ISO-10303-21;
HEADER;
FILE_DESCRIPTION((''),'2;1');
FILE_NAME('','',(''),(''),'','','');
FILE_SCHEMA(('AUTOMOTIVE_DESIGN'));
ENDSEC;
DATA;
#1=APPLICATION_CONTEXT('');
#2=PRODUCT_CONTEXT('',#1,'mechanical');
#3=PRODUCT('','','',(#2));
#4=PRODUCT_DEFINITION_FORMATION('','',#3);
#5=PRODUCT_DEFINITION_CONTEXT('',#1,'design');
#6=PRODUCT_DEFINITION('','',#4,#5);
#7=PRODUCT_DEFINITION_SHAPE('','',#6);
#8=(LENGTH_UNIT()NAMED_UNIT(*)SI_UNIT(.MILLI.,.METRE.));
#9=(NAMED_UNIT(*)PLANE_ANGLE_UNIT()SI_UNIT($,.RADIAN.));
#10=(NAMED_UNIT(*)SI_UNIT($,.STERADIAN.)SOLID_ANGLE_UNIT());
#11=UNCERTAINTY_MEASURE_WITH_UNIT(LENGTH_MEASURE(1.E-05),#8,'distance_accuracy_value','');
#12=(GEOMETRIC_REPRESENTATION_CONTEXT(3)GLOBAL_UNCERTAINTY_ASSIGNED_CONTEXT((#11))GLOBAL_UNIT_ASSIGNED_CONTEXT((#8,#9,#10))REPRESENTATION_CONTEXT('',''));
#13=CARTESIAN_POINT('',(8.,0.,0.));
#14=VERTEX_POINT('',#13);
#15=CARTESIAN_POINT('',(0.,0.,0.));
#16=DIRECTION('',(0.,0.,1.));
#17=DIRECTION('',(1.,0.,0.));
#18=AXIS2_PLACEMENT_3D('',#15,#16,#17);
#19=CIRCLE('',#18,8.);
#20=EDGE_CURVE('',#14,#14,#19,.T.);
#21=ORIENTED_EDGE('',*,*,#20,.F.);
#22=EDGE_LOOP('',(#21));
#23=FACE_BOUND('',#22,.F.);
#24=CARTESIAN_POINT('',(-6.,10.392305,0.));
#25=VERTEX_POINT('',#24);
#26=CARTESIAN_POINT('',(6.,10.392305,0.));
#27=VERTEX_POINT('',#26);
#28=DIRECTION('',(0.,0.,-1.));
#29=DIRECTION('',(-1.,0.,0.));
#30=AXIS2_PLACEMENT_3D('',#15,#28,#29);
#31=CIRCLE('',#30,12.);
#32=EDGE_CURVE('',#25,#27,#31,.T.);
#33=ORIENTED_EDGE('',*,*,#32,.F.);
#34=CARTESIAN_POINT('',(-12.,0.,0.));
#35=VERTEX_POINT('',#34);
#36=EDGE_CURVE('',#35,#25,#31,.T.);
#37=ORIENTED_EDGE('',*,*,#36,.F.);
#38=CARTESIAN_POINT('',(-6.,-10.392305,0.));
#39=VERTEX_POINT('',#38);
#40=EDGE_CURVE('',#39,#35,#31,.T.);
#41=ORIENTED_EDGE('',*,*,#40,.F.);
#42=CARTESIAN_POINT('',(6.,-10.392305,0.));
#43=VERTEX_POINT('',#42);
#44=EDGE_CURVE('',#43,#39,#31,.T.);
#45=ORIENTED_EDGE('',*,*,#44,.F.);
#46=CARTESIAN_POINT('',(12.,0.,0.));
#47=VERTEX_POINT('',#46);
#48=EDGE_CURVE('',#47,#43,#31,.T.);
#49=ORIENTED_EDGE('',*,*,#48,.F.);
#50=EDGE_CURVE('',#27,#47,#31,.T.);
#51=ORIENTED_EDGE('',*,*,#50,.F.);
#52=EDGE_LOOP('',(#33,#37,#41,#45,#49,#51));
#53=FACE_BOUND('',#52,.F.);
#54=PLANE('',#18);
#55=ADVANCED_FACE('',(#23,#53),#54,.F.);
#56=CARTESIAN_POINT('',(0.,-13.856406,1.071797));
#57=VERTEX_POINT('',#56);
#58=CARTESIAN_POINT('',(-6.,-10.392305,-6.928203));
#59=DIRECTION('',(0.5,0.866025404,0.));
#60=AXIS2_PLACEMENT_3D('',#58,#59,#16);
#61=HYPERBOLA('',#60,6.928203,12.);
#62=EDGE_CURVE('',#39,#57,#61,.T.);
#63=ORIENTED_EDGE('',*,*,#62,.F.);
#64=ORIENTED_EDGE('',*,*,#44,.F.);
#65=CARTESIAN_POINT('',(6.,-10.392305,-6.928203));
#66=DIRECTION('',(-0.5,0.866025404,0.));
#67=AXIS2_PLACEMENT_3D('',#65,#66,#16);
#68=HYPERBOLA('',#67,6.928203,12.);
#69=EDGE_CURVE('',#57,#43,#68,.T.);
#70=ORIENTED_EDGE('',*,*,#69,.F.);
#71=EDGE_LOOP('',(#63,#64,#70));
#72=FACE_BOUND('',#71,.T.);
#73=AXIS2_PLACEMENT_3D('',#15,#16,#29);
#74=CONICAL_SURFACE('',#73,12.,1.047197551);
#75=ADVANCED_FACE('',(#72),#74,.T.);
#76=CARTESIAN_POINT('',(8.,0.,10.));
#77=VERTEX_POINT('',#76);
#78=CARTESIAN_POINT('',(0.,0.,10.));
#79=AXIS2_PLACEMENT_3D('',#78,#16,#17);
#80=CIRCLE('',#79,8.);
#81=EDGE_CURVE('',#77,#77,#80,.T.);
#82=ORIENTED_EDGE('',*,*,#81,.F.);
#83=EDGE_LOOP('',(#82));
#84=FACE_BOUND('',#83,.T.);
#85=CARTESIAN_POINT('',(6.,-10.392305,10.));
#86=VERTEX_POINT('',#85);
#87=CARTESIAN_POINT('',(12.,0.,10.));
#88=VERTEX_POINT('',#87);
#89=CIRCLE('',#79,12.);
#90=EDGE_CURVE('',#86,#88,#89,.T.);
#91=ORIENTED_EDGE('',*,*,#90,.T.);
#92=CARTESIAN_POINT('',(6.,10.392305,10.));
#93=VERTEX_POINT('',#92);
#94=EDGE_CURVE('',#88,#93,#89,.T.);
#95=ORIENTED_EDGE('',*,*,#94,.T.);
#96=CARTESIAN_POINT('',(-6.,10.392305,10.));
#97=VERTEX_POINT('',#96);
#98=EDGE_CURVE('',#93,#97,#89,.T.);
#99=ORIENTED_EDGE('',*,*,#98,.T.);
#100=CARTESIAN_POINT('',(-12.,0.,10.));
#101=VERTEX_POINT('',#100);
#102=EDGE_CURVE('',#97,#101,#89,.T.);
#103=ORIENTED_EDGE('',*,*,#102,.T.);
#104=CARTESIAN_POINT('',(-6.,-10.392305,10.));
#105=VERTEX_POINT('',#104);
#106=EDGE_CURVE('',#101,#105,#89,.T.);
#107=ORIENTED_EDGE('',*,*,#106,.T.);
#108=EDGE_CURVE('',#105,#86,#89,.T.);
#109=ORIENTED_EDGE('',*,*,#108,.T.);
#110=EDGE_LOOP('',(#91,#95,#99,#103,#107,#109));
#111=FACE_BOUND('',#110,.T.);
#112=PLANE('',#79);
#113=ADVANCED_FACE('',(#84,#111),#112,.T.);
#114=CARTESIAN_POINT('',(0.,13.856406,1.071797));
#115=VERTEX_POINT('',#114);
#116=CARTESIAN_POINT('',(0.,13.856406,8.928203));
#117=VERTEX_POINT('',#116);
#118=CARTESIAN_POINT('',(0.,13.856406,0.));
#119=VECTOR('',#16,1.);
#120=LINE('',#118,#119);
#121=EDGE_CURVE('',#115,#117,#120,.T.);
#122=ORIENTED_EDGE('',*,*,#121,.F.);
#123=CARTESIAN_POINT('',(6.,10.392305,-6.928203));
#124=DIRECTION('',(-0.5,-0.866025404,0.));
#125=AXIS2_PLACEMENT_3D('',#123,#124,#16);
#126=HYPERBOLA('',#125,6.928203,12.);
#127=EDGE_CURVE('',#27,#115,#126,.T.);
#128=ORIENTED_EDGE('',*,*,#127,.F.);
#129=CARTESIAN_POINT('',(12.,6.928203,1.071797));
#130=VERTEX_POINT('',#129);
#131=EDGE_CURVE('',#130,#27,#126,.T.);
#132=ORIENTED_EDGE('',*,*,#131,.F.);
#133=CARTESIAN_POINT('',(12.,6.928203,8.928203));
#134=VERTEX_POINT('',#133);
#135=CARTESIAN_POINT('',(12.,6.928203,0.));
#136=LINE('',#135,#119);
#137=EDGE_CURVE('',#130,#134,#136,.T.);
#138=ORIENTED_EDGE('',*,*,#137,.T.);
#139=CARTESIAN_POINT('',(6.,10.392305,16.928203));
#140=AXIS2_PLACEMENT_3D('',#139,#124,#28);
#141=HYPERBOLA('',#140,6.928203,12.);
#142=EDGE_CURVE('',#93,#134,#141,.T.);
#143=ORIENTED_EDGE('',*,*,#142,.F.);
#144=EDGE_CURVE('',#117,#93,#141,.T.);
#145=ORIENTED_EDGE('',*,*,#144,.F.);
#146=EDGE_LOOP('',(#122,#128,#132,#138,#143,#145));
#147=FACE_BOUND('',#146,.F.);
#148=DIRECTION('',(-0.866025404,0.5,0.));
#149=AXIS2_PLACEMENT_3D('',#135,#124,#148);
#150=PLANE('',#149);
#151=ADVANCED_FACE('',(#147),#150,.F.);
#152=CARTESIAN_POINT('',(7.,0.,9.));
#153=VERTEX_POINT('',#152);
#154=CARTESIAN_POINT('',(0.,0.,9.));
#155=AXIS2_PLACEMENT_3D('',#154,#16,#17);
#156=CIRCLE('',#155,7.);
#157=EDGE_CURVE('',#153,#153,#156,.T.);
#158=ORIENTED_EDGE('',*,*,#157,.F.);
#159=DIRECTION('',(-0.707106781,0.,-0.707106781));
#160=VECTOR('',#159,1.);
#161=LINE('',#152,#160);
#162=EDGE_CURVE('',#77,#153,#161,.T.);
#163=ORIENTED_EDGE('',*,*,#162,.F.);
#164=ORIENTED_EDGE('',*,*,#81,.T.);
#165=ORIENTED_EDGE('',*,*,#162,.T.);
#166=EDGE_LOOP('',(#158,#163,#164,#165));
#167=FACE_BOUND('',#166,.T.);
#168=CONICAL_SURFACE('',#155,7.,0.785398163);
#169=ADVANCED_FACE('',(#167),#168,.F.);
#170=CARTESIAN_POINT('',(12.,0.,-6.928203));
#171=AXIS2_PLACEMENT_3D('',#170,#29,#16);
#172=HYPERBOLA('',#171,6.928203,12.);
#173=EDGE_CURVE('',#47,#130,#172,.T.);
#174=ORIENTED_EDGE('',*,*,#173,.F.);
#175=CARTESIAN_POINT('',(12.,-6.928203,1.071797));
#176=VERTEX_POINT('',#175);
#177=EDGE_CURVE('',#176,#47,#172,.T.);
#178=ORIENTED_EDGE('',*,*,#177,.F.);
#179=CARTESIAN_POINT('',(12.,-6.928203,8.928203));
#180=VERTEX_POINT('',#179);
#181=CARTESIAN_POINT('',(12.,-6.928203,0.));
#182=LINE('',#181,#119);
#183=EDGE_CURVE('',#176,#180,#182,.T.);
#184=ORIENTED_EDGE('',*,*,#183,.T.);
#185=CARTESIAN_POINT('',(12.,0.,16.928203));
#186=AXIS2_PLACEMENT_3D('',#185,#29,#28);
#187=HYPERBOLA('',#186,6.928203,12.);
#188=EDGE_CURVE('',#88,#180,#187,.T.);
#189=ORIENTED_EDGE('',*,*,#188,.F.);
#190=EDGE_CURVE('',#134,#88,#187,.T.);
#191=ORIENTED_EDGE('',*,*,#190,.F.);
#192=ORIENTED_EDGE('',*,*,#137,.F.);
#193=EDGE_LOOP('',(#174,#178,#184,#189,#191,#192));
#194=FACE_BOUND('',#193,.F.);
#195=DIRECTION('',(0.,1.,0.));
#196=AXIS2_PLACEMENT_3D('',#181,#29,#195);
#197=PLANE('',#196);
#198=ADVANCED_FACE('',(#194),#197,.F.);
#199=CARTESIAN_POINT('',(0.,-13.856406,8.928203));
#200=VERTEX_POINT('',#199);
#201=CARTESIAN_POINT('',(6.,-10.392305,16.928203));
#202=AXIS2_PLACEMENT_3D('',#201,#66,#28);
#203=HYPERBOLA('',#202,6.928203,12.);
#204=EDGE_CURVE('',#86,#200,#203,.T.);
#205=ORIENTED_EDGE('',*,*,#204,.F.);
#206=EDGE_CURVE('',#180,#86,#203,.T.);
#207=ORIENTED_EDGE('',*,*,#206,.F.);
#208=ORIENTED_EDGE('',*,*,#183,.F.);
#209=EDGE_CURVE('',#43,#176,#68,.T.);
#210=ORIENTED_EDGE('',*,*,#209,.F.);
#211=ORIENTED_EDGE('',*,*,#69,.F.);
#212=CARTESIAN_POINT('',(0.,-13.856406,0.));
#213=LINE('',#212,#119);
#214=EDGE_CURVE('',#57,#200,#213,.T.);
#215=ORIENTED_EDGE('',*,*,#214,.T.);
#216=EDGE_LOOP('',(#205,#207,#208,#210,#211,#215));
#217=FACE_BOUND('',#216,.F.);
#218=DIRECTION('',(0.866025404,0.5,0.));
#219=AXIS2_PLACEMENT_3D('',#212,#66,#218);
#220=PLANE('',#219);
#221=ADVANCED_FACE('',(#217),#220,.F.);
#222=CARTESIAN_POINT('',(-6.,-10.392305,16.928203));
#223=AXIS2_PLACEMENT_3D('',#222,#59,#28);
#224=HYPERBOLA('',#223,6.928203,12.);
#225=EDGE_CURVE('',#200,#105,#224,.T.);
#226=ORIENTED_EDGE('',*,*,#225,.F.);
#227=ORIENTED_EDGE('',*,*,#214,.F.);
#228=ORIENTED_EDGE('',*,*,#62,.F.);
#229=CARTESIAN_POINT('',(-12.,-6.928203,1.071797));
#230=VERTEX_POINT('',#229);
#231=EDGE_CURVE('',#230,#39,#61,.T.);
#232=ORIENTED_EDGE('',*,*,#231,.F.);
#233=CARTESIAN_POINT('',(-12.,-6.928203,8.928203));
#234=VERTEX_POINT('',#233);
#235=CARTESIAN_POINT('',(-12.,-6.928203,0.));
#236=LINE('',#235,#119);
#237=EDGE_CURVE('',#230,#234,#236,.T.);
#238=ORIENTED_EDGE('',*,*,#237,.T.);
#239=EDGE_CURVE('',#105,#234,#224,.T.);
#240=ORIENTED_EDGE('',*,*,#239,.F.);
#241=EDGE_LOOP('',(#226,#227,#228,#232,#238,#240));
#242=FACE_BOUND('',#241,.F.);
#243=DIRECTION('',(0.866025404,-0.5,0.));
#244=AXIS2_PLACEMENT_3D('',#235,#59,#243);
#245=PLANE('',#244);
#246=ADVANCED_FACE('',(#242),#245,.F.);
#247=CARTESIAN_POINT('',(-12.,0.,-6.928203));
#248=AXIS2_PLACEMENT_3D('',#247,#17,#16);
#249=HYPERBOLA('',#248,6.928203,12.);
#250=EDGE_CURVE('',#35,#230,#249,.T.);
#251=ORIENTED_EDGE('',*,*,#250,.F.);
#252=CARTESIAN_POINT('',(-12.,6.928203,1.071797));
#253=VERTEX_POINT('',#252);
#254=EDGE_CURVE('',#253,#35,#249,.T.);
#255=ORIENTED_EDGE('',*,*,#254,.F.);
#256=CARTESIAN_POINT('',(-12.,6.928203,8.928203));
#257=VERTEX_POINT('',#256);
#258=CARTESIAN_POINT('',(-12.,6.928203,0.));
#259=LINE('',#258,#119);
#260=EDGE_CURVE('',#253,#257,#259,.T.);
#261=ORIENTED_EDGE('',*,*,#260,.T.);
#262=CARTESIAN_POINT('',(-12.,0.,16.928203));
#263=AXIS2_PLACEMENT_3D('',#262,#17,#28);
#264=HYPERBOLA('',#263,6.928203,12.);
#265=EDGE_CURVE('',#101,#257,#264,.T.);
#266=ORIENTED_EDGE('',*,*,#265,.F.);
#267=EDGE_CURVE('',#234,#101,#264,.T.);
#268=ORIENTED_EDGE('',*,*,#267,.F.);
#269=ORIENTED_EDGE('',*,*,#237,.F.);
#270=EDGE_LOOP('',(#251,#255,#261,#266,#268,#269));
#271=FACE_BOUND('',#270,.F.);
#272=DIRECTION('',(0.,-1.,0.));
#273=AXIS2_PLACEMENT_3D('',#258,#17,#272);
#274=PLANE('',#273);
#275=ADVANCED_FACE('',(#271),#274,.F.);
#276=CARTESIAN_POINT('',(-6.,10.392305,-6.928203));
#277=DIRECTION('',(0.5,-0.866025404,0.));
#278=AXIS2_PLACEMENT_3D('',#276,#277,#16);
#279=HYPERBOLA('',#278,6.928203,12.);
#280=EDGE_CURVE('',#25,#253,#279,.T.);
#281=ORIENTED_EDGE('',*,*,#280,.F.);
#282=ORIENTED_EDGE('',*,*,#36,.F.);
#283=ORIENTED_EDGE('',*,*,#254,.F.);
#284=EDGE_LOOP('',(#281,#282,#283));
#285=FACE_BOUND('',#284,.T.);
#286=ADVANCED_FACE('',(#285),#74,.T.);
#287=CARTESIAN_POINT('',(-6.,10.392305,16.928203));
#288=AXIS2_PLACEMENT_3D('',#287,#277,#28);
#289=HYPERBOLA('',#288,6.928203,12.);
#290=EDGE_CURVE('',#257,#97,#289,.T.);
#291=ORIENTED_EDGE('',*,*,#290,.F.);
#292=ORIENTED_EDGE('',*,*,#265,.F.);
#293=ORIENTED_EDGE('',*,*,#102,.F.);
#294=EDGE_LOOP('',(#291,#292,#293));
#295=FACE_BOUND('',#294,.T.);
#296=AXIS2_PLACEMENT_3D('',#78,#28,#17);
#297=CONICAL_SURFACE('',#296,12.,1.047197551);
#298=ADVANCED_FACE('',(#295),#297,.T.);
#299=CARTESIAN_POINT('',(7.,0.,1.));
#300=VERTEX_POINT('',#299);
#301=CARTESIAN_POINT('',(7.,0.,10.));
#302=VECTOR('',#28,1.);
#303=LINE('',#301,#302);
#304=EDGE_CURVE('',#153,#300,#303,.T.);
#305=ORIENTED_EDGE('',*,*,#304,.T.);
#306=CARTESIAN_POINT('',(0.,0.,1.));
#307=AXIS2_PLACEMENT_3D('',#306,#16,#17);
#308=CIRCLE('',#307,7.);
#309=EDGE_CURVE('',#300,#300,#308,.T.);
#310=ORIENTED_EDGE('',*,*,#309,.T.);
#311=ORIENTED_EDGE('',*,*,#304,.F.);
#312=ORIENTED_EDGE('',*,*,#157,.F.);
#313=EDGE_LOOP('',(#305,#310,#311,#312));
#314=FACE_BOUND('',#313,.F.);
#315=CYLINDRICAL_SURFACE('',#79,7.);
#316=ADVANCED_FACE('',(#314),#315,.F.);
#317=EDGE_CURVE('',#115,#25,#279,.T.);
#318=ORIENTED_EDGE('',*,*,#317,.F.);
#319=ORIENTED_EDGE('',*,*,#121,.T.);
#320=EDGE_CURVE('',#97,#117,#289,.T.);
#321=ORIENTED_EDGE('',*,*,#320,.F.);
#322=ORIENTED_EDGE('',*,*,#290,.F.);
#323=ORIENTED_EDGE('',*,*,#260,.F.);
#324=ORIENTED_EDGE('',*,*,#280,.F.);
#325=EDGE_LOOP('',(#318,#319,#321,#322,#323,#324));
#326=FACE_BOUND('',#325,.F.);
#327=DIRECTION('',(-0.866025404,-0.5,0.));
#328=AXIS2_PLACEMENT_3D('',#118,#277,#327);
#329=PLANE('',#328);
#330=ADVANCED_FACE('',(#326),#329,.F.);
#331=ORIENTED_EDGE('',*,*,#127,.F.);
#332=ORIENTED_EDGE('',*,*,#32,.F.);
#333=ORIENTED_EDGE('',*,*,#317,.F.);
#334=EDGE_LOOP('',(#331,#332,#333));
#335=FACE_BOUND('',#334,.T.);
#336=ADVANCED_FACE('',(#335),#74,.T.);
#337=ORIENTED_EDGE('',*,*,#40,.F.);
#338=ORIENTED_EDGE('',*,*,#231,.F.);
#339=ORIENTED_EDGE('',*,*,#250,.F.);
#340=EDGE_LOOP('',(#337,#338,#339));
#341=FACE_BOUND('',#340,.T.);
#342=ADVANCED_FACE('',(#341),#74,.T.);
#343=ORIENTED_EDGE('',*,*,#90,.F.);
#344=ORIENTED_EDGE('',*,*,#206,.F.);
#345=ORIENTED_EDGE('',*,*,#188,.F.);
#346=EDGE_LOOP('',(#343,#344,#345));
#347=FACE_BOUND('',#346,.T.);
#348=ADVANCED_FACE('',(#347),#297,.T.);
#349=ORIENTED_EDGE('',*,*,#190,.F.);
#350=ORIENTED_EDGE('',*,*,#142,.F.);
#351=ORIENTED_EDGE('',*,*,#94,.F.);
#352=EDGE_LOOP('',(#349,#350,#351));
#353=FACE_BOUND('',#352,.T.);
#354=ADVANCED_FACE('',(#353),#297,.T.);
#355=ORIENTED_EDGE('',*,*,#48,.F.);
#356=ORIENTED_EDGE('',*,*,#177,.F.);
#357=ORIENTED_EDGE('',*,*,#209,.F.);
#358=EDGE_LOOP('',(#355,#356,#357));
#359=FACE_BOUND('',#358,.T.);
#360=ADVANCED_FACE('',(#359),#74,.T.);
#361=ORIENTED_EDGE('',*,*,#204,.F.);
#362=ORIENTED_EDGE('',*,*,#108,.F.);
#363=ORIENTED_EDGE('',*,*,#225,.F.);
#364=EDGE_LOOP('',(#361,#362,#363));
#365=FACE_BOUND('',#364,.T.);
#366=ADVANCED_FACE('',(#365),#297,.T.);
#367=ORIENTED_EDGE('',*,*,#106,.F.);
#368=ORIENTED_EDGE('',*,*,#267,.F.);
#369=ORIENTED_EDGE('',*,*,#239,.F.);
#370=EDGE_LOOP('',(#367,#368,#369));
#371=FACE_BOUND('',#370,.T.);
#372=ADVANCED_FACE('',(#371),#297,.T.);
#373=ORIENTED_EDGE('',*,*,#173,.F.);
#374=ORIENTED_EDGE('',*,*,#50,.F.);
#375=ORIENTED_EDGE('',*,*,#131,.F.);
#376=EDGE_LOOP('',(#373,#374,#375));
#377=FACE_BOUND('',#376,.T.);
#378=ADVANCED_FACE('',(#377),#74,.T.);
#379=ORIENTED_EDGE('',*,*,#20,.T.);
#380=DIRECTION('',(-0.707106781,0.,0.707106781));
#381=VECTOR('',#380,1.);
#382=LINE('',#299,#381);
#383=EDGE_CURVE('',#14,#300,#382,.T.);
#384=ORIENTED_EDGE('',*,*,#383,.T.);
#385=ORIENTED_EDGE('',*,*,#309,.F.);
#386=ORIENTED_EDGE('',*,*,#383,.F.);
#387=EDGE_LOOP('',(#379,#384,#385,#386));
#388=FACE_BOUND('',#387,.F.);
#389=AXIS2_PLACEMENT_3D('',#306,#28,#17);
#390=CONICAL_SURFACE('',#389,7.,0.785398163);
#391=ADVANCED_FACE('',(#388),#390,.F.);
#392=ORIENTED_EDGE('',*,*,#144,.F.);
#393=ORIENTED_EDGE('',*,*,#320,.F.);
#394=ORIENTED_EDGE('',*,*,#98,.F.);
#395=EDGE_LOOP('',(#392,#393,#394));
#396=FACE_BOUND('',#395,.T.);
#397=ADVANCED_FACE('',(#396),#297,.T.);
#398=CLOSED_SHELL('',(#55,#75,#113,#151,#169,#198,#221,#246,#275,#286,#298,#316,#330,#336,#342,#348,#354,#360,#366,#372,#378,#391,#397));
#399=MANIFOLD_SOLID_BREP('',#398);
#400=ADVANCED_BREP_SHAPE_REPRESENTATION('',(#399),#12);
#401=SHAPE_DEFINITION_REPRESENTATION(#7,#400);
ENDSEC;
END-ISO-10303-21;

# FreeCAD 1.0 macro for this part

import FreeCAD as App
import Part
import Sketcher
from FreeCAD import Vector
Q = App.Units.Quantity


def edges_at(feature, points):
    """Names of the edges that pass closest to the given points."""
    edges = feature.Shape.Edges
    near = lambda p: min(range(len(edges)), key=lambda i: edges[i].distToShape(Part.Vertex(*p))[0])
    return sorted({f"Edge{near(p) + 1}" for p in points})


def faces_at(feature, points):
    """Names of the faces that lie closest to the given points."""
    faces = feature.Shape.Faces
    near = lambda p: min(range(len(faces)), key=lambda i: faces[i].distToShape(Part.Vertex(*p))[0])
    return sorted({f"Face{near(p) + 1}" for p in points})


def add_polygon(sketch, points):
    """Adds a closed chain of lines whose ends are joined by coincident constraints."""
    first, n = sketch.GeometryCount, len(points)
    for a, b in zip(points, points[1:] + points[:1]):
        sketch.addGeometry(Part.LineSegment(App.Vector(*a, 0), App.Vector(*b, 0)), False)
    for i in range(n):
        sketch.addConstraint(Sketcher.Constraint("Coincident", first + i, 2, first + (i + 1) % n, 1))

doc = App.newDocument("Part")
body = doc.addObject("PartDesign::Body", "Body")

# Sketch on XY plane
sketch1 = body.newObject("Sketcher::SketchObject", "Sketch")
sketch1.AttachmentSupport = (doc.getObject("XY_Plane"), [""])
sketch1.MapMode = "FlatFace"
add_polygon(sketch1, [(12, -7), (12, 7), (0, 14), (-12, 7), (-12, -7), (0, -14)])  # lines 0-5
sketch1.addConstraint([
    Sketcher.Constraint("Vertical", 0),
    Sketcher.Constraint("Vertical", 3),
    Sketcher.Constraint("Symmetric", 0, 2, 3, 2, -1, 1),
    Sketcher.Constraint("Symmetric", 1, 2, 4, 2, -1, 1),
    Sketcher.Constraint("PointOnObject", 1, 2, -2),
    Sketcher.Constraint("Parallel", 2, 5),
    Sketcher.Constraint("Horizontal", 0, 2, 2, 2),
    Sketcher.Constraint("Angle", 1, Q("150 deg")),
    Sketcher.Constraint("DistanceX", -1, 1, 0, 2, 12.0),
    Sketcher.Constraint("DistanceY", 0, 1, 0, 2, 13.856406),
])
pad1 = body.newObject("PartDesign::Pad", "Pad")
pad1.Profile = sketch1
pad1.Length = 10

# Sketch on XY plane
sketch2 = body.newObject("Sketcher::SketchObject", "Sketch001")
sketch2.AttachmentSupport = (doc.getObject("XY_Plane"), [""])
sketch2.MapMode = "FlatFace"
sketch2.AttachmentOffset = App.Placement(Vector(0, 0, 10), App.Rotation())
sketch2.addGeometry(Part.Circle(Vector(0, 0, 0), Vector(0, 0, 1), 7), False)
sketch2.addConstraint([
    Sketcher.Constraint("Coincident", 0, 3, -1, 1),
    Sketcher.Constraint("Diameter", 0, 14.0),
])
pocket1 = body.newObject("PartDesign::Pocket", "Pocket")
pocket1.Profile = sketch2
pocket1.Type = "ThroughAll"
body2 = doc.addObject("PartDesign::Body", "Body001")

# Sketch on XY plane
sketch3 = body2.newObject("Sketcher::SketchObject", "Sketch002")
sketch3.AttachmentSupport = (doc.getObject("XY_Plane001"), [""])
sketch3.MapMode = "FlatFace"
sketch3.AttachmentOffset = App.Placement(Vector(0, 0, 10), App.Rotation())
add_polygon(sketch3, [(-34, 36), (-34, -36), (34, -36), (34, 36)])  # lines 0-3
sketch3.addGeometry(Part.Circle(Vector(0, 0, 0), Vector(0, 0, 1), 12), False)  # 4
sketch3.addConstraint([
    Sketcher.Constraint("Vertical", 0),
    Sketcher.Constraint("Horizontal", 1),
    Sketcher.Constraint("Vertical", 2),
    Sketcher.Constraint("Horizontal", 3),
    Sketcher.Constraint("Coincident", 4, 3, -1, 1),
    Sketcher.Constraint("Symmetric", 0, 2, 2, 2, -1, 1),
    Sketcher.Constraint("Diameter", 4, 24.0),
    Sketcher.Constraint("DistanceX", 1, 1, 1, 2, 68.242),
    Sketcher.Constraint("DistanceY", 0, 2, 0, 1, 71.954),
])
pad2 = body2.newObject("PartDesign::Pad", "Pad001")
pad2.Profile = sketch3
pad2.Length = 10
pad2.Reversed = True
doc.recompute()

datumplane = body2.newObject("PartDesign::Plane", "DatumPlane")
datumplane.AttachmentSupport = (doc.getObject("XY_Plane001"), [""])
datumplane.MapMode = "FlatFace"
datumplane.AttachmentOffset = App.Placement(Vector(0, 0, 10), App.Rotation())
draft = body2.newObject("PartDesign::Draft", "Draft")
draft.Base = (pad2, faces_at(pad2, [
    (0, -35.977, 5),
    (34.121, 0, 5),
    (0, 35.977, 5),
    (-34.121, 0, 5),
    (-12, 0, 5),
]))
draft.NeutralPlane = (datumplane, [""])
draft.Angle = 60
draft.Reversed = True
doc.recompute()

boolean = body.newObject("PartDesign::Boolean", "Boolean")
boolean.Type = "Cut"
boolean.addObjects([body2])
body3 = doc.addObject("PartDesign::Body", "Body002")

# Sketch on XY plane
sketch4 = body3.newObject("Sketcher::SketchObject", "Sketch003")
sketch4.AttachmentSupport = (doc.getObject("XY_Plane002"), [""])
sketch4.MapMode = "FlatFace"
add_polygon(sketch4, [(34, 36), (34, -36), (-34, -36), (-34, 36)])  # lines 0-3
sketch4.addGeometry(Part.Circle(Vector(0, 0, 0), Vector(0, 0, 1), 12), False)  # 4
sketch4.addConstraint([
    Sketcher.Constraint("Vertical", 0),
    Sketcher.Constraint("Horizontal", 1),
    Sketcher.Constraint("Vertical", 2),
    Sketcher.Constraint("Horizontal", 3),
    Sketcher.Constraint("Coincident", 4, 3, -1, 1),
    Sketcher.Constraint("Symmetric", 0, 2, 2, 2, -1, 1),
    Sketcher.Constraint("Diameter", 4, 24.0),
    Sketcher.Constraint("DistanceX", 1, 2, 1, 1, 68.242),
    Sketcher.Constraint("DistanceY", 0, 2, 0, 1, 71.954),
])
pad3 = body3.newObject("PartDesign::Pad", "Pad002")
pad3.Profile = sketch4
pad3.Length = 10
doc.recompute()

draft2 = body3.newObject("PartDesign::Draft", "Draft001")
draft2.Base = (pad3, faces_at(pad3, [
    (0, -35.977, 5),
    (-34.121, 0, 5),
    (0, 35.977, 5),
    (34.121, 0, 5),
    (12, 0, 5),
]))
draft2.NeutralPlane = (doc.getObject("XY_Plane002"), [""])
draft2.Angle = 60
draft2.Reversed = False
doc.recompute()

boolean2 = body.newObject("PartDesign::Boolean", "Boolean001")
boolean2.Type = "Cut"
boolean2.addObjects([body3])
doc.recompute()

chamfer = body.newObject("PartDesign::Chamfer", "Chamfer")
chamfer.Base = (boolean2, edges_at(boolean2, [(-7, 0, 0), (-7, 0, 10)]))
chamfer.Size = 1

doc.recompute()
